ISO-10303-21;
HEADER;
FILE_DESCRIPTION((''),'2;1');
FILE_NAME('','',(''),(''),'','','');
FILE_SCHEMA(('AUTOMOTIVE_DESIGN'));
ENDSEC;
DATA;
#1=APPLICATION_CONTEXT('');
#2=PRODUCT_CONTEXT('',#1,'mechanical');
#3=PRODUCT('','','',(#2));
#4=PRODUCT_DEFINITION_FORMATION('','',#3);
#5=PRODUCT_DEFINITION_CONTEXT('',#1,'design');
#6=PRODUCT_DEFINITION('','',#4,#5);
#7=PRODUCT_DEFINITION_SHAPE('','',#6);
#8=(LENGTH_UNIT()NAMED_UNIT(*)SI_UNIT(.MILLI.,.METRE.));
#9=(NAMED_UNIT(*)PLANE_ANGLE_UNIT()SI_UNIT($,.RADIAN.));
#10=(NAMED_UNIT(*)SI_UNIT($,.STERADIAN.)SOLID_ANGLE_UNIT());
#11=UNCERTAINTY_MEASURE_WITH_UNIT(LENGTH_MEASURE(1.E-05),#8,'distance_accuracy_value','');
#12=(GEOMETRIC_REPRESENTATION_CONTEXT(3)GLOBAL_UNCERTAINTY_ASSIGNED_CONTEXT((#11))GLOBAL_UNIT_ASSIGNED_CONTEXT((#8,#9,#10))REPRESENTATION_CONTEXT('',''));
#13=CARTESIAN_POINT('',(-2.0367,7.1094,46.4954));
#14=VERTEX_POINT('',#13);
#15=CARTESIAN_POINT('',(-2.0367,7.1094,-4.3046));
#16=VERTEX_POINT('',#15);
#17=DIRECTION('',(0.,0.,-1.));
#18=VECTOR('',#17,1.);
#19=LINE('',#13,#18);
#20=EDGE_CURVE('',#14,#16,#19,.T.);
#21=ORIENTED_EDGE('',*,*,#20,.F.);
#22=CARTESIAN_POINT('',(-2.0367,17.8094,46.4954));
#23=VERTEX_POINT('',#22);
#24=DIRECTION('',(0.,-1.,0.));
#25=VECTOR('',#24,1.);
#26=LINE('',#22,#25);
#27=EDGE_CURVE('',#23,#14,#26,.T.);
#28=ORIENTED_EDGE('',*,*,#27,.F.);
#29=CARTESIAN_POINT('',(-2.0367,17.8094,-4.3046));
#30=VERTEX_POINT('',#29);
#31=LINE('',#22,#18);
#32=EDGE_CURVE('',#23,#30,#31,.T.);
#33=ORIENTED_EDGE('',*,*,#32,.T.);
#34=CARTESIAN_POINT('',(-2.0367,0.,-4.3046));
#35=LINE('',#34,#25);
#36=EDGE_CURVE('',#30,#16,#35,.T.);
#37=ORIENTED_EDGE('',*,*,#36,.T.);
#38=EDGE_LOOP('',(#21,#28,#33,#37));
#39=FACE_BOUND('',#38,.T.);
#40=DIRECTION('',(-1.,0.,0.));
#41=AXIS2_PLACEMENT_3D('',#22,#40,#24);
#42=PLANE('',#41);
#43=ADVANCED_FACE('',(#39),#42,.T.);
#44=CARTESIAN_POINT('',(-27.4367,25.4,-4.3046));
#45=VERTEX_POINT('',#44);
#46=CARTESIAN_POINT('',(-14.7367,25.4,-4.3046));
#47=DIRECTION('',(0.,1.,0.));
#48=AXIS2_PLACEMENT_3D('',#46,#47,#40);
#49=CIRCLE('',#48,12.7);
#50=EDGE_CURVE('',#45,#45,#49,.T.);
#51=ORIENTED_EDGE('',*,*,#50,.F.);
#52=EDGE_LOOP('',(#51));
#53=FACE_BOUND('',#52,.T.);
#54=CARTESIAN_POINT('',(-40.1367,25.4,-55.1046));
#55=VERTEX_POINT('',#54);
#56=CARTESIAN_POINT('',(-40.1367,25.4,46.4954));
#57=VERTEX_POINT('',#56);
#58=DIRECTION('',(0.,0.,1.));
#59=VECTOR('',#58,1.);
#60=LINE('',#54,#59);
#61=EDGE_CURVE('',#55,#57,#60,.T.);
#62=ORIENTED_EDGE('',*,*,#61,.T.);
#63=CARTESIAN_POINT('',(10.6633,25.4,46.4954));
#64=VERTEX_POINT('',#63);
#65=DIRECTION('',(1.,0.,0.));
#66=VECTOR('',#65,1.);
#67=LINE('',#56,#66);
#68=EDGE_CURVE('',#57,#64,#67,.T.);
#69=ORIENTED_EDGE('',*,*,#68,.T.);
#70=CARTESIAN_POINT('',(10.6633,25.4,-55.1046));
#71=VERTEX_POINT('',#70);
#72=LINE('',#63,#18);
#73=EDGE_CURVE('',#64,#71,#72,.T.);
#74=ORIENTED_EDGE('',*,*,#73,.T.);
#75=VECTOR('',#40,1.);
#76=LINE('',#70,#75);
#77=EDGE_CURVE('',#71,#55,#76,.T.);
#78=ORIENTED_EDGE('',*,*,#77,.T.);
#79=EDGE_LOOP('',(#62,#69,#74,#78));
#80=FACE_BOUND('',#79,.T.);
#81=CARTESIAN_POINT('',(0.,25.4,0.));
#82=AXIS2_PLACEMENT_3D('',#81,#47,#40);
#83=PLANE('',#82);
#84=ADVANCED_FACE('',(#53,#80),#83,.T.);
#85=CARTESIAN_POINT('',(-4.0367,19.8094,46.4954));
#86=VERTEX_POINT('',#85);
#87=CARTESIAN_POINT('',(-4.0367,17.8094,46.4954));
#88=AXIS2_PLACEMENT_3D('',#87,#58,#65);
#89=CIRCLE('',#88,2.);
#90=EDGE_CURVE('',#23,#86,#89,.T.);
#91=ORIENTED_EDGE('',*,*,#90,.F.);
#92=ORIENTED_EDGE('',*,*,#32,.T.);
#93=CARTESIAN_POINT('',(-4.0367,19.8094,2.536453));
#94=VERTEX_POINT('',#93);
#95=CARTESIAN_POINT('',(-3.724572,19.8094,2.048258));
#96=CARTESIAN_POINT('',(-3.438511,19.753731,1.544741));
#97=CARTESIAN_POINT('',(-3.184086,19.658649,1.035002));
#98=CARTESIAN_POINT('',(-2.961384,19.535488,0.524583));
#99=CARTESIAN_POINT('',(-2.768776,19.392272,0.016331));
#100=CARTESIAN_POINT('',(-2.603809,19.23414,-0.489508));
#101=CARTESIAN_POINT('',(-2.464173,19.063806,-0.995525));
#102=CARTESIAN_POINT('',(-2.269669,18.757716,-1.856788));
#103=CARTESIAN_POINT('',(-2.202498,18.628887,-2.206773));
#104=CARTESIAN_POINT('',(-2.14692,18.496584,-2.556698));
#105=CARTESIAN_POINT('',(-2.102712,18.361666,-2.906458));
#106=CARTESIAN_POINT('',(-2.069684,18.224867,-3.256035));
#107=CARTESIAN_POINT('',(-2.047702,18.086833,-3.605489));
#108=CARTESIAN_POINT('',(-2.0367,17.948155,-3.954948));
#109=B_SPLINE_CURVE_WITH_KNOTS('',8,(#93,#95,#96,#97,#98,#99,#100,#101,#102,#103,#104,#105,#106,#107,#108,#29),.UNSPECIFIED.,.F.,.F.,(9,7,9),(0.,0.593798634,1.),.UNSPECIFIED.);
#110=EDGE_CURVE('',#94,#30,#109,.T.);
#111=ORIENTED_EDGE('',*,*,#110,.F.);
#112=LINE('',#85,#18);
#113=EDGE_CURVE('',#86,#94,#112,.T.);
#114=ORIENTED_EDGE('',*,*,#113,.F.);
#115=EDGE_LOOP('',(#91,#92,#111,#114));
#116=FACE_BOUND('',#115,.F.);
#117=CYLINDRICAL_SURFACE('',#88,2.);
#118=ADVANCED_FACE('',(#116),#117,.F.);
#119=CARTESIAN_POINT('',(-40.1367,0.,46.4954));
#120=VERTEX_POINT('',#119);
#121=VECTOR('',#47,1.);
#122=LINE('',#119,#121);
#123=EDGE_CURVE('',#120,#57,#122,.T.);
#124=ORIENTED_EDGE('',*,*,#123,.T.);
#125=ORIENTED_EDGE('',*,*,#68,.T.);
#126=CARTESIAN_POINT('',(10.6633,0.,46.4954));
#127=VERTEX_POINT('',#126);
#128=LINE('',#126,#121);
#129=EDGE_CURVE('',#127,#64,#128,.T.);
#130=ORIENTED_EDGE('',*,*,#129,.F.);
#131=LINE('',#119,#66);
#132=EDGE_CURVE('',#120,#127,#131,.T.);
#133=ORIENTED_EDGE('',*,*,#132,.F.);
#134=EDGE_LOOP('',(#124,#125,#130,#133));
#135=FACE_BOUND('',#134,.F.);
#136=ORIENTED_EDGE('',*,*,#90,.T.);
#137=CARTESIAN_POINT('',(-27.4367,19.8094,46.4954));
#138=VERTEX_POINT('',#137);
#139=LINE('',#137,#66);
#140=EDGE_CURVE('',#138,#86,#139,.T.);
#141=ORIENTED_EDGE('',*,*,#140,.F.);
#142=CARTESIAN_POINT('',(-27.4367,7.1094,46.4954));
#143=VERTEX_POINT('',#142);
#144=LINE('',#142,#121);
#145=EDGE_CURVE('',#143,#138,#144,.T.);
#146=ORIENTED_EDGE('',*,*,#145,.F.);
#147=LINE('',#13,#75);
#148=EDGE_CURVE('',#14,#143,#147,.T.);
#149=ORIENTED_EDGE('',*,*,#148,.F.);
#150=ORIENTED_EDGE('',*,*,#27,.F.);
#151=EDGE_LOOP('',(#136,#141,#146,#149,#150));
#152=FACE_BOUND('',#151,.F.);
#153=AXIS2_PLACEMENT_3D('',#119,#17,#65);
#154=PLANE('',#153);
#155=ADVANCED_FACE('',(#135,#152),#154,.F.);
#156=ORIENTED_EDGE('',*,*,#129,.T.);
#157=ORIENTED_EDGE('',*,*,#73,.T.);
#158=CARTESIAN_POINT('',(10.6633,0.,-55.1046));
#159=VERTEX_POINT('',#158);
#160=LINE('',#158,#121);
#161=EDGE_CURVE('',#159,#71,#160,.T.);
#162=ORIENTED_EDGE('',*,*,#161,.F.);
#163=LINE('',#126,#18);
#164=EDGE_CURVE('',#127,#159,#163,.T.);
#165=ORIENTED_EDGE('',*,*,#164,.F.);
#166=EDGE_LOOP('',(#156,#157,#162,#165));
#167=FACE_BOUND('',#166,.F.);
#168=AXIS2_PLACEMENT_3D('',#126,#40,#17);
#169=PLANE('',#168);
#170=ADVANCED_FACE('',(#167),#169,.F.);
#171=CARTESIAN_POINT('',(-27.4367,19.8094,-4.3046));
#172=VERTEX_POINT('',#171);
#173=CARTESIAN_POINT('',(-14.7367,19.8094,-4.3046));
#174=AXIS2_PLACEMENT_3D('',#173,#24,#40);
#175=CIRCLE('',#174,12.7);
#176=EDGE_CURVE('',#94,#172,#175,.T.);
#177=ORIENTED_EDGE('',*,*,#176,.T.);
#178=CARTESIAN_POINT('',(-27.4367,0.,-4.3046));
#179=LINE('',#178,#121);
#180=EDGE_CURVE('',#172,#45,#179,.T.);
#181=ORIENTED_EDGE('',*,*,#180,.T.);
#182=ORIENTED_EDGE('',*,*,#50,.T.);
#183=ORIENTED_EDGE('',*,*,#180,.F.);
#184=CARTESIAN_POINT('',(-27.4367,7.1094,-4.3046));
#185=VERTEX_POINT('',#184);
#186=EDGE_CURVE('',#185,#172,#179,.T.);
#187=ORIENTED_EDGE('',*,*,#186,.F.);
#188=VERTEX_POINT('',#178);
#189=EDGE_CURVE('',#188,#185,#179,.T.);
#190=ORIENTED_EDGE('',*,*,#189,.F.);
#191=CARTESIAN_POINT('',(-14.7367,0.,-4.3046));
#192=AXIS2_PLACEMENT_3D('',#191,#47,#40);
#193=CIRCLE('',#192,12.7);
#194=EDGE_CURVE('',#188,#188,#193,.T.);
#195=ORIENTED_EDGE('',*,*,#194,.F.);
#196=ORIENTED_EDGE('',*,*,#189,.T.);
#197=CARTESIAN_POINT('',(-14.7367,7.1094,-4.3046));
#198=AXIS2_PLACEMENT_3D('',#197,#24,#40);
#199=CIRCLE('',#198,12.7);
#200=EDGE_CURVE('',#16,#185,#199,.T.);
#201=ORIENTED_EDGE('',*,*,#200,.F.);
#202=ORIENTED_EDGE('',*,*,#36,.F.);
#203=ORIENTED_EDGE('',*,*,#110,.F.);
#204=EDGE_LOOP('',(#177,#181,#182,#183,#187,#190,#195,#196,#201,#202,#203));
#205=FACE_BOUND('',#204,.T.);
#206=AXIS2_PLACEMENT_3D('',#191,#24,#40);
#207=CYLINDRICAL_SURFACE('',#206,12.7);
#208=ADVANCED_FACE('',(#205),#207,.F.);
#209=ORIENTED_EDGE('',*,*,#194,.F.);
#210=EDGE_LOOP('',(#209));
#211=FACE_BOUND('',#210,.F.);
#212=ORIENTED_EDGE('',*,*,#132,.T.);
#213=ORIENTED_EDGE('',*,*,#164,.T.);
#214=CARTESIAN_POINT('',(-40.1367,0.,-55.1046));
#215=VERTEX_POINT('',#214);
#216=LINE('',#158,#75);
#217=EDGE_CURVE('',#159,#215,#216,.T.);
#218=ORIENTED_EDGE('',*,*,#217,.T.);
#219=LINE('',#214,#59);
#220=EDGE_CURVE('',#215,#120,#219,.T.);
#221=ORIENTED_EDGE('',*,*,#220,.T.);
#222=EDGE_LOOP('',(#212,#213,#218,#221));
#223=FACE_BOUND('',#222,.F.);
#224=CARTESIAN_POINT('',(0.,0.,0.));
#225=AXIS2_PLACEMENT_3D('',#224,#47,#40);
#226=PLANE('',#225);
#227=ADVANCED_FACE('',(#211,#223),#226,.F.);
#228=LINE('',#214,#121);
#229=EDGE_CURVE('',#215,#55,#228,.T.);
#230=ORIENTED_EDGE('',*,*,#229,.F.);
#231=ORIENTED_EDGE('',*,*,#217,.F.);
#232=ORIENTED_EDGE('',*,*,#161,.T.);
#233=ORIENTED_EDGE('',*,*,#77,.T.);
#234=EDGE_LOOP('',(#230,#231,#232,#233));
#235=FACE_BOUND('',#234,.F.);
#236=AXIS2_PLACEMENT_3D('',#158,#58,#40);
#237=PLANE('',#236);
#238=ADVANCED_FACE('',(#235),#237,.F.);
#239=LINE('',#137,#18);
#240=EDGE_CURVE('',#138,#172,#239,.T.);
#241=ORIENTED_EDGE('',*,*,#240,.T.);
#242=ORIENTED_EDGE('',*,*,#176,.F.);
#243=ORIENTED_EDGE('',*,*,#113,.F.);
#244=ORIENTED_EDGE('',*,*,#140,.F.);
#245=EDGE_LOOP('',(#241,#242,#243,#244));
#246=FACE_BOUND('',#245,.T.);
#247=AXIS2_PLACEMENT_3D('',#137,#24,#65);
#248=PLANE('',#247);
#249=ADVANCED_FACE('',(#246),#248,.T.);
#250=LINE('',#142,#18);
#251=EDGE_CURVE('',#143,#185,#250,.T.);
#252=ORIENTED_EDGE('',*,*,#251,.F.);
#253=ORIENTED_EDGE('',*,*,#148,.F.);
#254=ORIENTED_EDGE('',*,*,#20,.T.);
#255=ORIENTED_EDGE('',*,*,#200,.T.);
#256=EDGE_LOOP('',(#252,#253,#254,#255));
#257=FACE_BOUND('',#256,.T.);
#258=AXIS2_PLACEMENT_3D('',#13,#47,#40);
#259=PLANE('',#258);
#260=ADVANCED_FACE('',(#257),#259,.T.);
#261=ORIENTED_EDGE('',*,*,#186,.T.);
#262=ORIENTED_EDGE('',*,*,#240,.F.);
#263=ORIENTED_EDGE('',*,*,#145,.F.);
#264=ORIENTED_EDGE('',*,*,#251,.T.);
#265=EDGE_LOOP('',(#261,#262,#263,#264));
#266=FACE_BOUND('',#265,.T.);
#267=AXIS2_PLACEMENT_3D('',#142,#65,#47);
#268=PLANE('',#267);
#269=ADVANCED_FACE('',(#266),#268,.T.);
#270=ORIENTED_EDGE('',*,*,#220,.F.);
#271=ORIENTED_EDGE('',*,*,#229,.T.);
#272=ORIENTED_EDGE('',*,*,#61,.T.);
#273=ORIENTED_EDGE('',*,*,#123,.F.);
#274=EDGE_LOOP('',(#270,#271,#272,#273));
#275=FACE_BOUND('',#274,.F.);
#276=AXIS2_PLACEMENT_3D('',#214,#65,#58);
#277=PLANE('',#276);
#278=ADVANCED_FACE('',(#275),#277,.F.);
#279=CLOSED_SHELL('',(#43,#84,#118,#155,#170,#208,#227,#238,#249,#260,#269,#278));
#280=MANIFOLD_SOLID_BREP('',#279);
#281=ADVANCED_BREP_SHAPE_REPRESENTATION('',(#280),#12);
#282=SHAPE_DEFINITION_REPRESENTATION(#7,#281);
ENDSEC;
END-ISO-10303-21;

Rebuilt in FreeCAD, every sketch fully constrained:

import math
import FreeCAD as App
import Part
import Sketcher
Q = App.Units.Quantity


def add_polygon(sketch, points):
    """Adds a closed chain of lines whose ends are joined by coincident constraints."""
    first, n = sketch.GeometryCount, len(points)
    for a, b in zip(points, points[1:] + points[:1]):
        sketch.addGeometry(Part.LineSegment(App.Vector(*a, 0), App.Vector(*b, 0)), False)
    for i in range(n):
        sketch.addConstraint(Sketcher.Constraint("Coincident", first + i, 2, first + (i + 1) % n, 1))

doc = App.newDocument("Part")
body = doc.addObject("PartDesign::Body", "Body")

sketch1 = doc.addObject("Sketcher::SketchObject", "Sketch")
body.addObject(sketch1)
sketch1.AttachmentSupport = (doc.XZ_Plane, [""])
sketch1.MapMode = "FlatFace"
add_polygon(sketch1, [(-40.1367, -55.1046), (-40.1367, 46.4954), (10.6633, 46.4954), (10.6633, -55.1046)])
sketch1.addGeometry(Part.Circle(App.Vector(-14.7367, -4.3046, 0), App.Vector(0, 0, 1), 12.7), False)
sketch1.addConstraint(Sketcher.Constraint("Vertical", 0))
sketch1.addConstraint(Sketcher.Constraint("Horizontal", 1))
sketch1.addConstraint(Sketcher.Constraint("Vertical", 2))
sketch1.addConstraint(Sketcher.Constraint("Horizontal", 3))
sketch1.addConstraint(Sketcher.Constraint("Diameter", 4, Q("1 in")))
sketch1.addConstraint(Sketcher.Constraint("DistanceX", 1, 1, 1, 2, Q("2 in")))
sketch1.addConstraint(Sketcher.Constraint("DistanceY", 0, 1, 0, 2, Q("4 in")))
sketch1.addConstraint(Sketcher.Constraint("DistanceX", 0, 2, 4, 3, Q("1 in")))
sketch1.addConstraint(Sketcher.Constraint("DistanceY", 4, 3, 0, 2, Q("2 in")))
sketch1.addConstraint(Sketcher.Constraint("DistanceX", 4, 3, -1, 1, Q("14.7367 mm")))
sketch1.addConstraint(Sketcher.Constraint("DistanceY", 4, 3, -1, 1, Q("4.3046 mm")))
pad1 = doc.addObject("PartDesign::Pad", "Pad")
body.addObject(pad1)
pad1.Profile = sketch1
pad1.Length = Q("1 in")
pad1.Reversed = True

sketch2 = doc.addObject("Sketcher::SketchObject", "Sketch001")
body.addObject(sketch2)
sketch2.AttachmentSupport = (doc.XY_Plane, [""])
sketch2.MapMode = "FlatFace"
sketch2.AttachmentOffset = App.Placement(App.Vector(0, 0, 46.4954), App.Rotation())
sketch2.addGeometry(Part.LineSegment(App.Vector(-4.0367, 19.8094, 0), App.Vector(-27.4367, 19.8094, 0)), False)
sketch2.addGeometry(Part.LineSegment(App.Vector(-27.4367, 19.8094, 0), App.Vector(-27.4367, 7.1094, 0)), False)
sketch2.addGeometry(Part.LineSegment(App.Vector(-27.4367, 7.1094, 0), App.Vector(-2.0367, 7.1094, 0)), False)
sketch2.addGeometry(Part.LineSegment(App.Vector(-2.0367, 7.1094, 0), App.Vector(-2.0367, 17.8094, 0)), False)
sketch2.addGeometry(Part.ArcOfCircle(Part.Circle(App.Vector(-4.0367, 17.8094, 0), App.Vector(0, 0, 1), 2), math.radians(0), math.radians(90)), False)
sketch2.addConstraint(Sketcher.Constraint("Coincident", 0, 2, 1, 1))
sketch2.addConstraint(Sketcher.Constraint("Coincident", 1, 2, 2, 1))
sketch2.addConstraint(Sketcher.Constraint("Coincident", 2, 2, 3, 1))
sketch2.addConstraint(Sketcher.Constraint("Tangent", 3, 2, 4, 1))
sketch2.addConstraint(Sketcher.Constraint("Tangent", 4, 2, 0, 1))
sketch2.addConstraint(Sketcher.Constraint("Horizontal", 0))
sketch2.addConstraint(Sketcher.Constraint("Vertical", 1))
sketch2.addConstraint(Sketcher.Constraint("Horizontal", 2))
sketch2.addConstraint(Sketcher.Constraint("Vertical", 3))
sketch2.addConstraint(Sketcher.Constraint("DistanceX", 2, 1, 2, 2, Q("1 in")))
sketch2.addConstraint(Sketcher.Constraint("DistanceY", 1, 2, 1, 1, Q("0.5 in")))
sketch2.addConstraint(Sketcher.Constraint("Radius", 4, Q("2 mm")))
sketch2.addConstraint(Sketcher.Constraint("DistanceY", -1, 1, 0, 2, Q("0.7799 in")))
sketch2.addConstraint(Sketcher.Constraint("DistanceX", 4, 3, -1, 1, Q("4.0367 mm")))
pocket1 = doc.addObject("PartDesign::Pocket", "Pocket")
body.addObject(pocket1)
pocket1.Profile = sketch2
pocket1.Type = "UpToFirst"

doc.recompute()
